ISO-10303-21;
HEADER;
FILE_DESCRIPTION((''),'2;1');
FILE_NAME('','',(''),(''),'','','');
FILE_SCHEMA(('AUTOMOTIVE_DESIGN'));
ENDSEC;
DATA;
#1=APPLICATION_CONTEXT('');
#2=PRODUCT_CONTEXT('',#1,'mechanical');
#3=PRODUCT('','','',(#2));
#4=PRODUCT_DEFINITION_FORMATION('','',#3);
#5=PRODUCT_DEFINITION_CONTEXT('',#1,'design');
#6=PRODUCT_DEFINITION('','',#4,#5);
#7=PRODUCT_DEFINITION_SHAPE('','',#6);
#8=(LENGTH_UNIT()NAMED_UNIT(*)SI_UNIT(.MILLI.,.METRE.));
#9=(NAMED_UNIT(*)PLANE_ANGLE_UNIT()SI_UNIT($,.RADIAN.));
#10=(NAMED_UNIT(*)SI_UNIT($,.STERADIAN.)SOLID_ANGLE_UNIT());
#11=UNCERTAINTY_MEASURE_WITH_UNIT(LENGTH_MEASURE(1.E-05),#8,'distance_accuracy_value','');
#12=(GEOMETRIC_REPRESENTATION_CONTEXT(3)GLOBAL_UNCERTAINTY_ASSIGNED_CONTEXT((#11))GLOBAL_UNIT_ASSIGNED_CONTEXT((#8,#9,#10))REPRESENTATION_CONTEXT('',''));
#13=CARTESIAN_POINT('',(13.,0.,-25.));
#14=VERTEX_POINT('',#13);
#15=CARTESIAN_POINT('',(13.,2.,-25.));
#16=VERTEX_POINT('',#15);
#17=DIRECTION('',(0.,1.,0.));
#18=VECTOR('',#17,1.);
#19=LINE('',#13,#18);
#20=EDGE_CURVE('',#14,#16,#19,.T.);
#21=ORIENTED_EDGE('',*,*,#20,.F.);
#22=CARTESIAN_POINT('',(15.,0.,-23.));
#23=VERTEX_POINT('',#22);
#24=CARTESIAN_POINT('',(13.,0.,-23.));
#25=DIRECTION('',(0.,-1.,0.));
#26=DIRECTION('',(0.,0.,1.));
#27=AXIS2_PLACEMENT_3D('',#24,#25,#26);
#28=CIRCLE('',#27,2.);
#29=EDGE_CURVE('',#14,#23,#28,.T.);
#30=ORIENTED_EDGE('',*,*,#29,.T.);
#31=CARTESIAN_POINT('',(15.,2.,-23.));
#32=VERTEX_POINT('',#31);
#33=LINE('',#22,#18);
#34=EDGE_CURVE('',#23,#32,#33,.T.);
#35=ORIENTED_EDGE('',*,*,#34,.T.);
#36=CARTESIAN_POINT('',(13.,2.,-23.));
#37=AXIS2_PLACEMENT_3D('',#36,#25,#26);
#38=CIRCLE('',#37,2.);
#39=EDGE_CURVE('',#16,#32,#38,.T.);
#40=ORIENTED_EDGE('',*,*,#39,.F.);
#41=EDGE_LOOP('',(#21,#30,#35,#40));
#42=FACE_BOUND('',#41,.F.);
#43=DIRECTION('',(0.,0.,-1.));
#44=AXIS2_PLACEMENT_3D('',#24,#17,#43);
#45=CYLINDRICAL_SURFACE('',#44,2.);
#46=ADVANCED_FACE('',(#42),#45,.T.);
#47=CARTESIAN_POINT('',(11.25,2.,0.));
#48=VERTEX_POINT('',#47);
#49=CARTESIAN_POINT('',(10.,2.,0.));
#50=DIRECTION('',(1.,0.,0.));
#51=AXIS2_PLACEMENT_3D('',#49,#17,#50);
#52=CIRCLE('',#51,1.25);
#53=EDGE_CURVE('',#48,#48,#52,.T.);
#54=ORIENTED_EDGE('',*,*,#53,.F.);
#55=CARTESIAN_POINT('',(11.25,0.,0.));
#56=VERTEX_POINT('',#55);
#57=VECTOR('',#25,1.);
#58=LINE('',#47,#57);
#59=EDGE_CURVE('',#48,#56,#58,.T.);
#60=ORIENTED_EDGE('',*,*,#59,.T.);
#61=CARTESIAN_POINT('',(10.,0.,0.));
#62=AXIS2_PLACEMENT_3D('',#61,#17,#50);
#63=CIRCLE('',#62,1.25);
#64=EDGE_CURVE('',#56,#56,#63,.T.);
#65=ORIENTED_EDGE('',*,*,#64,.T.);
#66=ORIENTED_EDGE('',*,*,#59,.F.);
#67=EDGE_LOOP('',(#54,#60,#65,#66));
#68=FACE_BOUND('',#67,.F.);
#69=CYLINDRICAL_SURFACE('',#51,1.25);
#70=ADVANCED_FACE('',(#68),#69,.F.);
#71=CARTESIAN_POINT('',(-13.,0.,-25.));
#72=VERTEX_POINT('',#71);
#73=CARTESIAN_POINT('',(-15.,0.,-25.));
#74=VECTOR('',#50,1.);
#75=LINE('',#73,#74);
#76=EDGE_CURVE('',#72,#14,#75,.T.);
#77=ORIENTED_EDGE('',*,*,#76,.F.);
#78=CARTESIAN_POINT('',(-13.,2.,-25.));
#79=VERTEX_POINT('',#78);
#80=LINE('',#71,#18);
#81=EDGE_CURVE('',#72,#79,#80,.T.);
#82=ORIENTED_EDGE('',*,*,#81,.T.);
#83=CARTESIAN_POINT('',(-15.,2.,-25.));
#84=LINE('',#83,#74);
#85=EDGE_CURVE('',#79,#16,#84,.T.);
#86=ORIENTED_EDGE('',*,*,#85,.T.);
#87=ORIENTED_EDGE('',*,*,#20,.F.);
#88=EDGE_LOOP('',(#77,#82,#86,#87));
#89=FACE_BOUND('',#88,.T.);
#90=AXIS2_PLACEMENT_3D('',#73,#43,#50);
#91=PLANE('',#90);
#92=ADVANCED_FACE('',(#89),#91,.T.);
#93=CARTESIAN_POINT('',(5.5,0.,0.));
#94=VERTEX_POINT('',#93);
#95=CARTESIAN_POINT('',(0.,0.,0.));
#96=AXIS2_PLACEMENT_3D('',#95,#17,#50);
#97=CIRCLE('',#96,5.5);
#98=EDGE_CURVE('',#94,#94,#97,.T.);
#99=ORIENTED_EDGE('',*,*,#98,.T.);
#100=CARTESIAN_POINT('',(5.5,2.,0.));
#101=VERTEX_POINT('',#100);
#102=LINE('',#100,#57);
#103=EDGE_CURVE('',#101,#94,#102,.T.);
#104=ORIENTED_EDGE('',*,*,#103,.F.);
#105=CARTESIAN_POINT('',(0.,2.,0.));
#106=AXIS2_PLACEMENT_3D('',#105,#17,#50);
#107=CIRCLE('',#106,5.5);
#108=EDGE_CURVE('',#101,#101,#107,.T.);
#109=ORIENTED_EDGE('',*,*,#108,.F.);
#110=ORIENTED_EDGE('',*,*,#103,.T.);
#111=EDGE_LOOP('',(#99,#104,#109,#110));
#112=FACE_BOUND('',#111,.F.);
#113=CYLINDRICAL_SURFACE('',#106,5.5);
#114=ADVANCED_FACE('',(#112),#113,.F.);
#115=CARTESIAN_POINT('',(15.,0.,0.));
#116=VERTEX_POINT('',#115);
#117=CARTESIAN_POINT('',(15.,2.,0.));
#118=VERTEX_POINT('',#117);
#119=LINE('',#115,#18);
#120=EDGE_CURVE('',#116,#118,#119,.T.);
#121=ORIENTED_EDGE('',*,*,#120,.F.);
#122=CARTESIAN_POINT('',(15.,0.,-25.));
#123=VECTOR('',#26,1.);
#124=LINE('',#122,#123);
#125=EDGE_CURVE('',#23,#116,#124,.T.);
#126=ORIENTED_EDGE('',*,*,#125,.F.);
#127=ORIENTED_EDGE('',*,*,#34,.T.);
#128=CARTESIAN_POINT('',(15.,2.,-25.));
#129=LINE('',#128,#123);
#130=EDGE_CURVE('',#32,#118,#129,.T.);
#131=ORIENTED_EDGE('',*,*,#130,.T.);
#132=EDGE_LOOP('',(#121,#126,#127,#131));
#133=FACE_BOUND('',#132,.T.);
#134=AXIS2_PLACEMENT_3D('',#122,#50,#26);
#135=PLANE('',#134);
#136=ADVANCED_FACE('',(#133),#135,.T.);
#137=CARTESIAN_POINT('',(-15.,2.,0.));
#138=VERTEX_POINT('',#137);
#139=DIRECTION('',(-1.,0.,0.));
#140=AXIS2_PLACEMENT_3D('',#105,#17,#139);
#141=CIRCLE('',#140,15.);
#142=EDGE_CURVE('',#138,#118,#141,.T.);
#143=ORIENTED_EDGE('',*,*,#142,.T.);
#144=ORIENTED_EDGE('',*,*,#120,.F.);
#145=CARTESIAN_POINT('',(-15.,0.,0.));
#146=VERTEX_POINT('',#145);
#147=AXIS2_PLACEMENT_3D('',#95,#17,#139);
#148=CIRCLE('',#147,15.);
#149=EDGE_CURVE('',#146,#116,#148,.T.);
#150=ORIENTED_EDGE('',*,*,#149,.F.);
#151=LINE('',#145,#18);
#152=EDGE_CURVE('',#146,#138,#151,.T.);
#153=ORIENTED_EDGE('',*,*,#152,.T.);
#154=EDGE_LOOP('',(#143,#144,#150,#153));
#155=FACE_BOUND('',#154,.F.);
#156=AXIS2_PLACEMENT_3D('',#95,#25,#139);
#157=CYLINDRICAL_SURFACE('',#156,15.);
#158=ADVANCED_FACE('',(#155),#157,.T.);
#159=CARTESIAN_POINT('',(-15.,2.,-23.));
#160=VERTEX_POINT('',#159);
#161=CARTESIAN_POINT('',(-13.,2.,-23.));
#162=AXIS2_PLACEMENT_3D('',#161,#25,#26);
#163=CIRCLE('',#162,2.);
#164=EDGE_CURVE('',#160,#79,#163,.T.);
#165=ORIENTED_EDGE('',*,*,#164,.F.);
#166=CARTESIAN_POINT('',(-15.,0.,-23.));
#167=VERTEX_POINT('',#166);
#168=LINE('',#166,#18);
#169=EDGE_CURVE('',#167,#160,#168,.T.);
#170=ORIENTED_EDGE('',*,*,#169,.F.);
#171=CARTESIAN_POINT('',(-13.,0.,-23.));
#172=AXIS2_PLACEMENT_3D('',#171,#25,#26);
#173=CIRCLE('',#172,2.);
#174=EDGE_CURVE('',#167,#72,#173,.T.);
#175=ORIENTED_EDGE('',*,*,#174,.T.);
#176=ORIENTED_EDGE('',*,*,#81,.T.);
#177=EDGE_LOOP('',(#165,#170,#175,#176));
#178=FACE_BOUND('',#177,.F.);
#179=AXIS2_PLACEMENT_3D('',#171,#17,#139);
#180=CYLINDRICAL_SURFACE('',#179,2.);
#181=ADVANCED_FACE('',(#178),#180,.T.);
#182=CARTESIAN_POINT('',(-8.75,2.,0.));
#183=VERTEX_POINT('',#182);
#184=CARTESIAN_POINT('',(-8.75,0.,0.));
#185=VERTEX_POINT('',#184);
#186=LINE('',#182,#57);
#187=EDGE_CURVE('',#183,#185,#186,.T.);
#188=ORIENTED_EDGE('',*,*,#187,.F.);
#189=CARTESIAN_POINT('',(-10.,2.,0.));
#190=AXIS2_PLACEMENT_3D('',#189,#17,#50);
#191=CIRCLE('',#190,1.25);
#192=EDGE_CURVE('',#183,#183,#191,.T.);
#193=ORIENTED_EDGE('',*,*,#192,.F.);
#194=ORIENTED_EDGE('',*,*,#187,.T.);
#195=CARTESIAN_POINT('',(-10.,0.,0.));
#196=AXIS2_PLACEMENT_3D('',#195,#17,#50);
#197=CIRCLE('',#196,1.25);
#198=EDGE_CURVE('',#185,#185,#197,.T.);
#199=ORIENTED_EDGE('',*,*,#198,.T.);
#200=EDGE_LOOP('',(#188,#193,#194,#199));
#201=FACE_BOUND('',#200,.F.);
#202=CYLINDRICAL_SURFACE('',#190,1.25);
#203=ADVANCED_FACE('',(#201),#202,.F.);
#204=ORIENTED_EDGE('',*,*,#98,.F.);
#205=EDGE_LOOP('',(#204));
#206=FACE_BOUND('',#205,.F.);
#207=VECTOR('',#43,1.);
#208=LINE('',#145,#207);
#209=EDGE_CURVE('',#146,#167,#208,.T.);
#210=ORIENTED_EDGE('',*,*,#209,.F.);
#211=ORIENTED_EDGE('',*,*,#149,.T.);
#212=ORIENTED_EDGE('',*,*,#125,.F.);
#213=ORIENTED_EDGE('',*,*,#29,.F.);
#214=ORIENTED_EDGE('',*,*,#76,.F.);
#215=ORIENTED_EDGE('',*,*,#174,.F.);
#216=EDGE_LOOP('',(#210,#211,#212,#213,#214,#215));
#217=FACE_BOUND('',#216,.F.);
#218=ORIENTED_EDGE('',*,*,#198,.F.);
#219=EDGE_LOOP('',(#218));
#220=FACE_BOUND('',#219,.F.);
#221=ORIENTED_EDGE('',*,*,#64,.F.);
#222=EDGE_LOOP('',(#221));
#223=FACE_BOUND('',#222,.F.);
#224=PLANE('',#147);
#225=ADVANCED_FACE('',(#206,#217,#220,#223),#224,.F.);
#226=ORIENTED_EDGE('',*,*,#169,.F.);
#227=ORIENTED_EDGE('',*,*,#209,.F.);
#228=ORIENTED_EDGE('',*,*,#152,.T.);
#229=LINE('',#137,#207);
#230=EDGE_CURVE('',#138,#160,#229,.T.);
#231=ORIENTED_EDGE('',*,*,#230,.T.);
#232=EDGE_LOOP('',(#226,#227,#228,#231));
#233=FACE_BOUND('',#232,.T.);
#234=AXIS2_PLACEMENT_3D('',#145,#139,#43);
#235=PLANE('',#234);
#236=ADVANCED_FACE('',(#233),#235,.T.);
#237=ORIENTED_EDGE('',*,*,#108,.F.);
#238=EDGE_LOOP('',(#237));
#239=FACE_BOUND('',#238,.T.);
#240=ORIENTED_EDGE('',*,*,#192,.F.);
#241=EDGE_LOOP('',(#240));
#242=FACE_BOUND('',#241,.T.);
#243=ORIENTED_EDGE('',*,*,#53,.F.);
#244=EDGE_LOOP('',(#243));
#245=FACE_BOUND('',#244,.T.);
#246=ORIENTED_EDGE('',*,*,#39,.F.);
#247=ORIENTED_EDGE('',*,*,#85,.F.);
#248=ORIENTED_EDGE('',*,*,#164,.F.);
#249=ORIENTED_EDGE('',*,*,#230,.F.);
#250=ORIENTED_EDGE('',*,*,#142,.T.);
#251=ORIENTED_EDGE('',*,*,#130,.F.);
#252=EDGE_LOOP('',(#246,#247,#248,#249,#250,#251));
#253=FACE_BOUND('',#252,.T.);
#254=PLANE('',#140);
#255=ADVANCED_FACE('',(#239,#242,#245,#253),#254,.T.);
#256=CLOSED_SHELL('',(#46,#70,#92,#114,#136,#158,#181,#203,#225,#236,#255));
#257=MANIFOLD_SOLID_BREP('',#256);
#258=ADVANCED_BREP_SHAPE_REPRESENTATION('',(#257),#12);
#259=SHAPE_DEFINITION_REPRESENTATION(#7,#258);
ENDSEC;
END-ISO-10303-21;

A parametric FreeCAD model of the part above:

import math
import FreeCAD as App
import Part
import Sketcher

V = App.Vector


def edges_at(feature, points):
    """Names of the edges that pass closest to the given points."""
    edges = feature.Shape.Edges
    near = lambda p: min(range(len(edges)), key=lambda i: edges[i].distToShape(Part.Vertex(*p))[0])
    return sorted({f"Edge{near(p) + 1}" for p in points})

doc = App.newDocument("Part")
body = doc.addObject("PartDesign::Body", "Body")

# Sketch on XZ plane
sketch1 = body.newObject("Sketcher::SketchObject", "Sketch")
sketch1.AttachmentSupport = (doc.getObject("XZ_Plane"), [""])
sketch1.MapMode = "FlatFace"
sketch1.addGeometry([
    Part.LineSegment(V(-15, -25, 0), V(-15, 0, 0)),
    Part.ArcOfCircle(Part.Circle(V(0, 0, 0), V(0, 0, 1), 15), math.radians(0), math.radians(180)),
    Part.LineSegment(V(15, 0, 0), V(15, -25, 0)),
    Part.LineSegment(V(15, -25, 0), V(-15, -25, 0)),
], False)
sketch1.addConstraint([
    Sketcher.Constraint("Tangent", 0, 2, 1, 2),
    Sketcher.Constraint("Tangent", 1, 1, 2, 1),
    Sketcher.Constraint("Coincident", 2, 2, 3, 1),
    Sketcher.Constraint("Coincident", 3, 2, 0, 1),
    Sketcher.Constraint("Vertical", 0),
    Sketcher.Constraint("Vertical", 2),
    Sketcher.Constraint("Horizontal", 3),
    Sketcher.Constraint("Coincident", 1, 3, -1, 1),
    Sketcher.Constraint("Radius", 1, 15.0),
    Sketcher.Constraint("DistanceY", 0, 1, 0, 2, 25.0),
])
pad1 = body.newObject("PartDesign::Pad", "Pad")
pad1.Profile = sketch1
pad1.Length = 2
pad1.Reversed = True

# Sketch on XZ plane
sketch2 = body.newObject("Sketcher::SketchObject", "Sketch001")
sketch2.AttachmentSupport = (doc.getObject("XZ_Plane"), [""])
sketch2.MapMode = "FlatFace"
sketch2.AttachmentOffset = App.Placement(V(0, 0, -2), App.Rotation())
sketch2.addGeometry([
    Part.Circle(V(-10, 0, 0), V(0, 0, 1), 1.2),
    Part.Circle(V(10, 0, 0), V(0, 0, 1), 1.2),
], False)
sketch2.addConstraint([
    Sketcher.Constraint("Equal", 0, 1),
    Sketcher.Constraint("Symmetric", 0, 3, 1, 3, -1, 1),
    Sketcher.Constraint("PointOnObject", 0, 3, -1),
    Sketcher.Constraint("Diameter", 0, 2.5),
    Sketcher.Constraint("DistanceX", 0, 3, -1, 1, 10.0),
])
pocket1 = body.newObject("PartDesign::Pocket", "Pocket")
pocket1.Profile = sketch2
pocket1.Type = "ThroughAll"
pocket1.Reversed = True

# Sketch on XZ plane
sketch3 = body.newObject("Sketcher::SketchObject", "Sketch002")
sketch3.AttachmentSupport = (doc.getObject("XZ_Plane"), [""])
sketch3.MapMode = "FlatFace"
sketch3.AttachmentOffset = App.Placement(V(0, 0, -2), App.Rotation())
sketch3.addGeometry(Part.Circle(V(0, 0, 0), V(0, 0, 1), 6), False)
sketch3.addConstraint([
    Sketcher.Constraint("Coincident", 0, 3, -1, 1),
    Sketcher.Constraint("Diameter", 0, 11.0),
])
pocket2 = body.newObject("PartDesign::Pocket", "Pocket001")
pocket2.Profile = sketch3
pocket2.Type = "ThroughAll"
pocket2.Reversed = True
doc.recompute()

fillet = body.newObject("PartDesign::Fillet", "Fillet")
fillet.Base = (pocket2, edges_at(pocket2, [(-15, 1, -25), (15, 1, -25)]))
fillet.Radius = 2

doc.recompute()
